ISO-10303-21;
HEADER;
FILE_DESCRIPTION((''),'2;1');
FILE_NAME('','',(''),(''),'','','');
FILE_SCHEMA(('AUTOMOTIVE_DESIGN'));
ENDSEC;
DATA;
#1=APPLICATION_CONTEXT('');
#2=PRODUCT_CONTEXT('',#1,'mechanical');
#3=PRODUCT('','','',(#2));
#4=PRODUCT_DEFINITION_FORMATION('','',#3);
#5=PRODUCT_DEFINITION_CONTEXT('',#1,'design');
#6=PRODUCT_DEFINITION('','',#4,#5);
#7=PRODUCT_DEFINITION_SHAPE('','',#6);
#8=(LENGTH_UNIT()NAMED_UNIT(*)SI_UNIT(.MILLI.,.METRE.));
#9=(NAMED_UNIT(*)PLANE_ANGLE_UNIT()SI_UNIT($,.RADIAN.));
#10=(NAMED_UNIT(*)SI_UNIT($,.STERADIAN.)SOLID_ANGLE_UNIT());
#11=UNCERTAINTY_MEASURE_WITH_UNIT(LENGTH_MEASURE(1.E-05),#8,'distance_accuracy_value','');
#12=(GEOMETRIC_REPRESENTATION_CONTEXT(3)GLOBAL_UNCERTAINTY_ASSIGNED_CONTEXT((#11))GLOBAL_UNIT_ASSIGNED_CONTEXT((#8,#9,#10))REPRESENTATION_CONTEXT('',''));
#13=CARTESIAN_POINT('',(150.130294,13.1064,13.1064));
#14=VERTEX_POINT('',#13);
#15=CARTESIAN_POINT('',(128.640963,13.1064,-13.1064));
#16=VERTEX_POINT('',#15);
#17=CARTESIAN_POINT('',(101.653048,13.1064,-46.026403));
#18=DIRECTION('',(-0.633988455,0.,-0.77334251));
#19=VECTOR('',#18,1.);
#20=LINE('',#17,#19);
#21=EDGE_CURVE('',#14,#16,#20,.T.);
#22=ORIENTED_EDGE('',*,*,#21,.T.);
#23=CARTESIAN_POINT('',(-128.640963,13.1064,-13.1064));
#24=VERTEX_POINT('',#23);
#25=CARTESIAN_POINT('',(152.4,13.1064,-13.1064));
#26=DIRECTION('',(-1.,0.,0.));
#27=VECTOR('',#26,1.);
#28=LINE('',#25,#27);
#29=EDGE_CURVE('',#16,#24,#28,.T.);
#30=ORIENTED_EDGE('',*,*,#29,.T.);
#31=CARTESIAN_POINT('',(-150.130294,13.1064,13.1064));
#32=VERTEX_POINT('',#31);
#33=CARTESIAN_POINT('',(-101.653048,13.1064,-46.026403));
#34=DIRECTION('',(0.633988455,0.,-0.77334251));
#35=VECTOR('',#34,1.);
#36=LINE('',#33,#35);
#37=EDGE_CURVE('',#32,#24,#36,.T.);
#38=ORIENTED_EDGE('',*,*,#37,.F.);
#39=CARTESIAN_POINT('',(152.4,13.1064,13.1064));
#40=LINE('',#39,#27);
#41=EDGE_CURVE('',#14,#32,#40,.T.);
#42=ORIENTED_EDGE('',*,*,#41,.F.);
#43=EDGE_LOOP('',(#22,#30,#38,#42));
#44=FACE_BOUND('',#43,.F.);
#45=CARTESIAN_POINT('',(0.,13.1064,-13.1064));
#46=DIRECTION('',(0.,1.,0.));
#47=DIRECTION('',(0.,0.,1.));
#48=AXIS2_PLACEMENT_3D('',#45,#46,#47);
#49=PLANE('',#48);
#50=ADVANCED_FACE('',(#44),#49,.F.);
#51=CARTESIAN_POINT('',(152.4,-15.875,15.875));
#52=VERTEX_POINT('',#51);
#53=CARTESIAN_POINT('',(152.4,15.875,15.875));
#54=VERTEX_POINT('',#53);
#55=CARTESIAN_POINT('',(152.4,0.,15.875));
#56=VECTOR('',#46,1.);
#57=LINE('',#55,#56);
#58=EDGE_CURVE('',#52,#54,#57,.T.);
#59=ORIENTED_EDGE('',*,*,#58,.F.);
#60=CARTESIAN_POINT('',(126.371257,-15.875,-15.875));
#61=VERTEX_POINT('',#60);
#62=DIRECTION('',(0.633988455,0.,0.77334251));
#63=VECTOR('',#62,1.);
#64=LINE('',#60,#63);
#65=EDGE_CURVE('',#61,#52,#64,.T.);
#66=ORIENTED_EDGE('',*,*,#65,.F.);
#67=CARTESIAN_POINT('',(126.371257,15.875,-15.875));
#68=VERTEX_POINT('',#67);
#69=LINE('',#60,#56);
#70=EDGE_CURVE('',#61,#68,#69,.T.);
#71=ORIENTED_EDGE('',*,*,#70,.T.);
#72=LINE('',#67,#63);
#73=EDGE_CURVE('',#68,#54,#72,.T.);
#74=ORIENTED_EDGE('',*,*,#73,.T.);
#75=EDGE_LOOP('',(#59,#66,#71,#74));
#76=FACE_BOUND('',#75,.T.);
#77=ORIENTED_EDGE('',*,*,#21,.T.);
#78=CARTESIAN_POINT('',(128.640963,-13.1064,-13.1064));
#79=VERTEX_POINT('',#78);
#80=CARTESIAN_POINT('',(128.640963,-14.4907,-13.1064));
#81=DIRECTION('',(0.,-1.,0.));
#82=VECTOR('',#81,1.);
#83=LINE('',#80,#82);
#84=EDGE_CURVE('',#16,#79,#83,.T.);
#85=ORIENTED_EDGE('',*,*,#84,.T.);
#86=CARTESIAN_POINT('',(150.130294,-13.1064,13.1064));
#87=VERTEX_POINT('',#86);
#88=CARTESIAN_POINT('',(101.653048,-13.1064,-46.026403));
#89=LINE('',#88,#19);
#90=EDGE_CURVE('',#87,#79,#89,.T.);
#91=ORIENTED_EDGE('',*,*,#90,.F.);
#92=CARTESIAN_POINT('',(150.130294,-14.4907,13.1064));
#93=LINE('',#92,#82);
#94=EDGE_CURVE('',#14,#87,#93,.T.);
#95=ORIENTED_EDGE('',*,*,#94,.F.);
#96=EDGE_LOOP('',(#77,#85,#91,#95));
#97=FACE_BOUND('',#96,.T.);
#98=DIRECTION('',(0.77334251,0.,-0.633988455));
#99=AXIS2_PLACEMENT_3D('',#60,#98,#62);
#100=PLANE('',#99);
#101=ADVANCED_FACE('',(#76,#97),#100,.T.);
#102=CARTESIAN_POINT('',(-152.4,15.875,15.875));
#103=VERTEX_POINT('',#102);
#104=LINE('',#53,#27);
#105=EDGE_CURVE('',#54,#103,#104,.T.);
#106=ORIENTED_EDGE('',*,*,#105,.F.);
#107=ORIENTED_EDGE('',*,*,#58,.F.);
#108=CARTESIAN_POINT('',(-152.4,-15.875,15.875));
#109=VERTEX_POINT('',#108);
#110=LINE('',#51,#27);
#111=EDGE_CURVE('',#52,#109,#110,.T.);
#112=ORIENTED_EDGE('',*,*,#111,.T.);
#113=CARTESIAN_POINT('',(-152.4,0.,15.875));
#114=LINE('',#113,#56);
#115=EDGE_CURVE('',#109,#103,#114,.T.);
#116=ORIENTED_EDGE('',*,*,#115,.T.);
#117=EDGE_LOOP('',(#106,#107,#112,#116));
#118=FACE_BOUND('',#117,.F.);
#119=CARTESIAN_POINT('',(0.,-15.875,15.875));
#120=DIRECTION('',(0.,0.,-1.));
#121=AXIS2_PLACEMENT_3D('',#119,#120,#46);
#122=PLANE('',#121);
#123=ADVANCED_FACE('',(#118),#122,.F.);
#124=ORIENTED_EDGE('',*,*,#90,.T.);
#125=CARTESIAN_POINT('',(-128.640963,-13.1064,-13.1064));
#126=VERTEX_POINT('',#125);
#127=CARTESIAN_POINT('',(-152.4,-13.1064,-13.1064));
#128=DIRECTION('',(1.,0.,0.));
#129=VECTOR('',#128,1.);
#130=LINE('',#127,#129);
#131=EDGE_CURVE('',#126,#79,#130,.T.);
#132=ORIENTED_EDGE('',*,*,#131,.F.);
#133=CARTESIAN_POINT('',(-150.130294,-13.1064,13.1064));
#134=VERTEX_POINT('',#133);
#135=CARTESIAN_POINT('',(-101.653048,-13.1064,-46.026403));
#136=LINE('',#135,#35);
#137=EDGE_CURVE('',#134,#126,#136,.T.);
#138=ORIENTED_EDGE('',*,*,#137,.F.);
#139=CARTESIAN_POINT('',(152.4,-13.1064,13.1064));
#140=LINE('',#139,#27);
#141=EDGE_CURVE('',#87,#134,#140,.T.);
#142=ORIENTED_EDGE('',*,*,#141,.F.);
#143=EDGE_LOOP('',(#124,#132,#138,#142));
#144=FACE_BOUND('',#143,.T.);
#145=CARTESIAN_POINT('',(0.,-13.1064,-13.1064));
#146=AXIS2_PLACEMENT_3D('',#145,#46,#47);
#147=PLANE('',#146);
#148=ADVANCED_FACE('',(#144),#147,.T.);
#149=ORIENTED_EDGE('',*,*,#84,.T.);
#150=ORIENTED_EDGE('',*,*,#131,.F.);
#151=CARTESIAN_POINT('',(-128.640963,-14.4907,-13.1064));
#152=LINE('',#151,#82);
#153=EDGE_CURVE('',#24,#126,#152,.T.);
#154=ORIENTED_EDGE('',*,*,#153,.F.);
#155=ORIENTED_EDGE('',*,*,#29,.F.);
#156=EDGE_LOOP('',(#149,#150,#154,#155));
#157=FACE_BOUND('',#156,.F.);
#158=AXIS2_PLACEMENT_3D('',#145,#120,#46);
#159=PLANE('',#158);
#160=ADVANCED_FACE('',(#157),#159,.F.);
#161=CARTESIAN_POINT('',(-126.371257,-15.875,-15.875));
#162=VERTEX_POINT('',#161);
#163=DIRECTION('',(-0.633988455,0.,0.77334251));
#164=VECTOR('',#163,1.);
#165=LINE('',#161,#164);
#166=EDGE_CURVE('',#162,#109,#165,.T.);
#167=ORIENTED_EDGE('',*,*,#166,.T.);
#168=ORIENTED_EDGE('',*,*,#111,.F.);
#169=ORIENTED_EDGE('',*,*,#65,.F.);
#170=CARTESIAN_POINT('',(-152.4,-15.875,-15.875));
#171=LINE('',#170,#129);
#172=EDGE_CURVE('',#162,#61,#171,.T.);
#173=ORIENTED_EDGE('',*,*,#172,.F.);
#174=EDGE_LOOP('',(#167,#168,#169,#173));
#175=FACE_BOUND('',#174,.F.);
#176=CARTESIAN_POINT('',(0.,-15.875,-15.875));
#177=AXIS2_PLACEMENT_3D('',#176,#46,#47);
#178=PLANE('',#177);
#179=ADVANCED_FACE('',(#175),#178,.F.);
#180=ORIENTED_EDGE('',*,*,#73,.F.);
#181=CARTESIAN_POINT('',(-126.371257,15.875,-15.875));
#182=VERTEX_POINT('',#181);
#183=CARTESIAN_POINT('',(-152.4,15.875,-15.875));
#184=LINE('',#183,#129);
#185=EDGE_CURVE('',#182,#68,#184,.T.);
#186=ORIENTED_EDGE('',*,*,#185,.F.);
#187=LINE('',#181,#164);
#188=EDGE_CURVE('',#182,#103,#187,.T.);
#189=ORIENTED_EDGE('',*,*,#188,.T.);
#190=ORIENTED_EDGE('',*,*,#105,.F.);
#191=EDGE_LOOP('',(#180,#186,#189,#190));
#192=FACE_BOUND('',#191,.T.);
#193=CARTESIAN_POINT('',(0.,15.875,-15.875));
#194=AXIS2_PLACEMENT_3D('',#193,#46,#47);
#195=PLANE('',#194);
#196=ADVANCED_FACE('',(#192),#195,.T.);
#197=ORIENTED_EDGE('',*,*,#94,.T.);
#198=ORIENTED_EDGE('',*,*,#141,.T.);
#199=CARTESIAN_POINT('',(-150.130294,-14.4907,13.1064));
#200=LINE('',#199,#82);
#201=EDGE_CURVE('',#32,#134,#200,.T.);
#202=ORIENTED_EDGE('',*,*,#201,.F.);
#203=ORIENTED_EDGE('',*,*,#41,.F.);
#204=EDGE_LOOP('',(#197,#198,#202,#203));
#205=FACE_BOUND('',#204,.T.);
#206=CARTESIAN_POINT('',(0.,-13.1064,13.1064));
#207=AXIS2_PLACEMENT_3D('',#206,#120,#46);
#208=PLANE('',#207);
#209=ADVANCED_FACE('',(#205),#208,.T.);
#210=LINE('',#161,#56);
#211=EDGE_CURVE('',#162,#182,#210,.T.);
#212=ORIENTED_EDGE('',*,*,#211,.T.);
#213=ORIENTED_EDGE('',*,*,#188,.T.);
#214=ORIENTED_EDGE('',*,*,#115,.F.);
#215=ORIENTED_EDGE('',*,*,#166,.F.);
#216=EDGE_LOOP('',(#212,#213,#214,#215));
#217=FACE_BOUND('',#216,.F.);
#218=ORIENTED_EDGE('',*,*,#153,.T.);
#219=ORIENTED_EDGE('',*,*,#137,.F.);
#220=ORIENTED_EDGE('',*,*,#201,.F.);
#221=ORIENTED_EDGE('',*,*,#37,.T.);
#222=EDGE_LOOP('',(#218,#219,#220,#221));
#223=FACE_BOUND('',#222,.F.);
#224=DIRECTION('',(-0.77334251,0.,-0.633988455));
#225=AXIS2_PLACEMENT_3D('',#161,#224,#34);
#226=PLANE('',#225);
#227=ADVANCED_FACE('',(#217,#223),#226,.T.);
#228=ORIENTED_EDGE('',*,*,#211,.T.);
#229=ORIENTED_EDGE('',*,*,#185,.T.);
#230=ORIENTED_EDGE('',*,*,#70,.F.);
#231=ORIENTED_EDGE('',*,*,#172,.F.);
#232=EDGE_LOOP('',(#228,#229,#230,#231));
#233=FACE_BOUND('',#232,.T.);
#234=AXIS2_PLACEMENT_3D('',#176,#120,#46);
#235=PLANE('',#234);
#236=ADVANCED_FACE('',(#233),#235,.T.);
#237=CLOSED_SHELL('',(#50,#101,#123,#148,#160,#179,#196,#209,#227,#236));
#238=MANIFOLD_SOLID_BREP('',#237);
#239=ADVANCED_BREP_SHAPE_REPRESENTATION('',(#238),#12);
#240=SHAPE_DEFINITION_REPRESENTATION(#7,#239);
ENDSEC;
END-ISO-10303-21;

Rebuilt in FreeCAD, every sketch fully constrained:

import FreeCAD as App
import Part
import Sketcher
Q = App.Units.Quantity

doc = App.newDocument("Part")
body = doc.addObject("PartDesign::Body", "Body")

sketch1 = body.newObject("Sketcher::SketchObject", "Sketch")
sketch1.AttachmentSupport = (doc.getObject("YZ_Plane"), [""])
sketch1.MapMode = "FlatFace"
sketch1.addGeometry([
    Part.LineSegment(App.Vector(-16, 16, 0), App.Vector(-16, -16, 0)),
    Part.LineSegment(App.Vector(-16, -16, 0), App.Vector(16, -16, 0)),
    Part.LineSegment(App.Vector(16, -16, 0), App.Vector(16, 16, 0)),
    Part.LineSegment(App.Vector(16, 16, 0), App.Vector(-16, 16, 0)),
    Part.LineSegment(App.Vector(13, -13, 0), App.Vector(-13, -13, 0)),
    Part.LineSegment(App.Vector(-13, -13, 0), App.Vector(-13, 13, 0)),
    Part.LineSegment(App.Vector(-13, 13, 0), App.Vector(13, 13, 0)),
    Part.LineSegment(App.Vector(13, 13, 0), App.Vector(13, -13, 0)),
], False)
sketch1.addConstraint([
    Sketcher.Constraint("Coincident", 0, 2, 1, 1),
    Sketcher.Constraint("Coincident", 1, 2, 2, 1),
    Sketcher.Constraint("Coincident", 2, 2, 3, 1),
    Sketcher.Constraint("Coincident", 3, 2, 0, 1),
    Sketcher.Constraint("Coincident", 4, 2, 5, 1),
    Sketcher.Constraint("Coincident", 5, 2, 6, 1),
    Sketcher.Constraint("Coincident", 6, 2, 7, 1),
    Sketcher.Constraint("Coincident", 7, 2, 4, 1),
    Sketcher.Constraint("Vertical", 0),
    Sketcher.Constraint("Horizontal", 1),
    Sketcher.Constraint("Vertical", 2),
    Sketcher.Constraint("Horizontal", 3),
    Sketcher.Constraint("Horizontal", 4),
    Sketcher.Constraint("Vertical", 5),
    Sketcher.Constraint("Horizontal", 6),
    Sketcher.Constraint("Vertical", 7),
    Sketcher.Constraint("Symmetric", 0, 2, 2, 2, -1, 1),
    Sketcher.Constraint("Symmetric", 4, 2, 6, 2, -1, 1),
    Sketcher.Constraint("Equal", 3, 0),
    Sketcher.Constraint("Equal", 6, 5),
    Sketcher.Constraint("DistanceX", 1, 1, 1, 2, Q("1.25 in")),
    Sketcher.Constraint("DistanceX", 4, 2, 4, 1, Q("1.032 in")),
])
pad1 = body.newObject("PartDesign::Pad", "Pad")
pad1.Profile = sketch1
pad1.Type = "TwoLengths"
pad1.Length = Q("6 in")
pad1.Length2 = Q("6 in")

sketch2 = body.newObject("Sketcher::SketchObject", "Sketch001")
sketch2.AttachmentSupport = (doc.getObject("XZ_Plane"), [""])
sketch2.MapMode = "FlatFace"
sketch2.AttachmentOffset = App.Placement(App.Vector(0, 0, 0.625 * 25.4), App.Rotation())
sketch2.addGeometry([
    Part.LineSegment(App.Vector(152, -16, 0), App.Vector(152, 16, 0)),
    Part.LineSegment(App.Vector(152, 16, 0), App.Vector(126, -16, 0)),
    Part.LineSegment(App.Vector(126, -16, 0), App.Vector(152, -16, 0)),
], False)
sketch2.addConstraint([
    Sketcher.Constraint("Coincident", 0, 2, 1, 1),
    Sketcher.Constraint("Coincident", 1, 2, 2, 1),
    Sketcher.Constraint("Coincident", 2, 2, 0, 1),
    Sketcher.Constraint("Vertical", 0),
    Sketcher.Constraint("Horizontal", 2),
    Sketcher.Constraint("DistanceX", -1, 1, 0, 2, Q("6 in")),
    Sketcher.Constraint("DistanceY", 0, 1, 0, 2, Q("1.25 in")),
    Sketcher.Constraint("DistanceY", -1, 1, 0, 2, Q("0.625 in")),
    Sketcher.Constraint("DistanceX", 2, 1, 2, 2, 26.028743),
])
pocket1 = body.newObject("PartDesign::Pocket", "Pocket")
pocket1.Profile = sketch2
pocket1.Length = Q("1.25 in")
doc.recompute()

mirrored = body.newObject("PartDesign::Mirrored", "Mirrored")
mirrored.Originals = [pocket1]
mirrored.MirrorPlane = (doc.getObject("YZ_Plane"), [""])
body.Tip = mirrored

doc.recompute()
